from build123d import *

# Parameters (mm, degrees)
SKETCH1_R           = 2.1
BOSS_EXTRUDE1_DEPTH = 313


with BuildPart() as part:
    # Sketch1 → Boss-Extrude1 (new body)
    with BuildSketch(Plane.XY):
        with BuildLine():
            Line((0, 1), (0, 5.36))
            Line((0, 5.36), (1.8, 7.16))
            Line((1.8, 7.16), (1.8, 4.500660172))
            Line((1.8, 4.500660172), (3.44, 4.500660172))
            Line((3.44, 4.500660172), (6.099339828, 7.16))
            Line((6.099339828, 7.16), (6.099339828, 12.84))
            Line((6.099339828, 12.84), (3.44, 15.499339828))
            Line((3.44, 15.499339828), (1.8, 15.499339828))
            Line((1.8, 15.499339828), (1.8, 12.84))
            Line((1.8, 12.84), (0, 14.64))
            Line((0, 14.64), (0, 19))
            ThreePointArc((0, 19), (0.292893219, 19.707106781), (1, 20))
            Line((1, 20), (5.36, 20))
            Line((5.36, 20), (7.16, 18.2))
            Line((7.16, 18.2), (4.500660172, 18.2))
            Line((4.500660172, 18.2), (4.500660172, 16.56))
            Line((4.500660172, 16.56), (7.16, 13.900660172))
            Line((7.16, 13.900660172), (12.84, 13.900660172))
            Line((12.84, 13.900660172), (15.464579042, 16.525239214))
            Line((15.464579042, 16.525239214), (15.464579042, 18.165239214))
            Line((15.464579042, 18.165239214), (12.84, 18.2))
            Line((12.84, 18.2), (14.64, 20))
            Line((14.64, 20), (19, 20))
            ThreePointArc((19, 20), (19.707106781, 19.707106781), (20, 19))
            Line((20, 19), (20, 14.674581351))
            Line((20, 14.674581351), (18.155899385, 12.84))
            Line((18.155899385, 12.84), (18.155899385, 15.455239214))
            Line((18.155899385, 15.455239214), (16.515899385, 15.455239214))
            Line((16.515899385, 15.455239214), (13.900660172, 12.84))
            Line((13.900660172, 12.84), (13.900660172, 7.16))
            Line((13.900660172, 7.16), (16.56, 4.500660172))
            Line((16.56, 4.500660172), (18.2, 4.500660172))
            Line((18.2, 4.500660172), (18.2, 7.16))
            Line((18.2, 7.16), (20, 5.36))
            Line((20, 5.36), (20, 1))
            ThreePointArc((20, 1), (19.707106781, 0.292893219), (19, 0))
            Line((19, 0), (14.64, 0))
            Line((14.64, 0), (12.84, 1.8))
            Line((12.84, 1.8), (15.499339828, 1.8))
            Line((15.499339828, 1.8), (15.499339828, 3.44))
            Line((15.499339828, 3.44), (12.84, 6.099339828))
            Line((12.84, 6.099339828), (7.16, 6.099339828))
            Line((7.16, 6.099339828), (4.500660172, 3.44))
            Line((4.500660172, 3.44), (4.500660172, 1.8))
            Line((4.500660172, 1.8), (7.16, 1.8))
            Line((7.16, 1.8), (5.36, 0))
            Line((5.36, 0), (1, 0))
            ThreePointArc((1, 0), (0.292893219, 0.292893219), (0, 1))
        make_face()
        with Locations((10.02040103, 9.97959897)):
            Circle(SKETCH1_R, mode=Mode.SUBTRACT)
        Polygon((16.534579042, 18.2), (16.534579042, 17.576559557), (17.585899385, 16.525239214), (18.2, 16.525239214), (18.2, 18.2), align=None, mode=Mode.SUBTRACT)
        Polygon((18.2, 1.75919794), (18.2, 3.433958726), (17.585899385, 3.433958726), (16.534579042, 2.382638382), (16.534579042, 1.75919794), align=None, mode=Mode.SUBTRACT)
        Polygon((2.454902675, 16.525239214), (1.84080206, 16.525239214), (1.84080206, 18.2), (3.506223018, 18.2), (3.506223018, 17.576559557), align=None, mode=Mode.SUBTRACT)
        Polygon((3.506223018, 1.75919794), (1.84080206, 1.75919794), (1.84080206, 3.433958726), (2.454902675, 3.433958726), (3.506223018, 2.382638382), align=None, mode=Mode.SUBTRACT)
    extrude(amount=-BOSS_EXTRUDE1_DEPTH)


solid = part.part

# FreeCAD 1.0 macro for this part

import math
import FreeCAD as App
import Part
import Sketcher
Q = App.Units.Quantity


def add_polygon(sketch, points):
    """Adds a closed chain of lines whose ends are joined by coincident constraints."""
    first, n = sketch.GeometryCount, len(points)
    for a, b in zip(points, points[1:] + points[:1]):
        sketch.addGeometry(Part.LineSegment(App.Vector(*a, 0), App.Vector(*b, 0)), False)
    for i in range(n):
        sketch.addConstraint(Sketcher.Constraint("Coincident", first + i, 2, first + (i + 1) % n, 1))

doc = App.newDocument("Part")
body = doc.addObject("PartDesign::Body", "Body")

# Sketch on XY plane
sketch1 = body.newObject("Sketcher::SketchObject", "Sketch")
sketch1.AttachmentSupport = (doc.getObject("XY_Plane"), [""])
sketch1.MapMode = "FlatFace"
sketch1.addGeometry(Part.LineSegment(App.Vector(0, 5.4, 0), App.Vector(0, 1, 0)), False)  # 0
sketch1.addGeometry(Part.ArcOfCircle(Part.Circle(App.Vector(1, 1, 0), App.Vector(0, 0, 1), 1), math.radians(-180), math.radians(-90)), False)  # 1
sketch1.addGeometry(Part.LineSegment(App.Vector(1, 0, 0), App.Vector(5.4, 0, 0)), False)  # 2
sketch1.addGeometry(Part.LineSegment(App.Vector(5.4, 0, 0), App.Vector(7.2, 1.8, 0)), False)  # 3
sketch1.addGeometry(Part.LineSegment(App.Vector(7.2, 1.8, 0), App.Vector(4.5, 1.8, 0)), False)  # 4
sketch1.addGeometry(Part.LineSegment(App.Vector(4.5, 1.8, 0), App.Vector(4.5, 3.4, 0)), False)  # 5
sketch1.addGeometry(Part.LineSegment(App.Vector(4.5, 3.4, 0), App.Vector(7.2, 6.1, 0)), False)  # 6
sketch1.addGeometry(Part.LineSegment(App.Vector(7.2, 6.1, 0), App.Vector(12.8, 6.1, 0)), False)  # 7
sketch1.addGeometry(Part.LineSegment(App.Vector(12.8, 6.1, 0), App.Vector(15.5, 3.4, 0)), False)  # 8
sketch1.addGeometry(Part.LineSegment(App.Vector(15.5, 3.4, 0), App.Vector(15.5, 1.8, 0)), False)  # 9
sketch1.addGeometry(Part.LineSegment(App.Vector(15.5, 1.8, 0), App.Vector(12.8, 1.8, 0)), False)  # 10
sketch1.addGeometry(Part.LineSegment(App.Vector(12.8, 1.8, 0), App.Vector(14.6, 0, 0)), False)  # 11
sketch1.addGeometry(Part.LineSegment(App.Vector(14.6, 0, 0), App.Vector(19, 0, 0)), False)  # 12
sketch1.addGeometry(Part.ArcOfCircle(Part.Circle(App.Vector(19, 1, 0), App.Vector(0, 0, 1), 1), math.radians(-90), math.radians(0)), False)  # 13
sketch1.addGeometry(Part.LineSegment(App.Vector(20, 1, 0), App.Vector(20, 5.4, 0)), False)  # 14
sketch1.addGeometry(Part.LineSegment(App.Vector(20, 5.4, 0), App.Vector(18.2, 7.2, 0)), False)  # 15
sketch1.addGeometry(Part.LineSegment(App.Vector(18.2, 7.2, 0), App.Vector(18.2, 4.5, 0)), False)  # 16
sketch1.addGeometry(Part.LineSegment(App.Vector(18.2, 4.5, 0), App.Vector(16.6, 4.5, 0)), False)  # 17
sketch1.addGeometry(Part.LineSegment(App.Vector(16.6, 4.5, 0), App.Vector(13.9, 7.2, 0)), False)  # 18
sketch1.addGeometry(Part.LineSegment(App.Vector(13.9, 7.2, 0), App.Vector(13.9, 12.8, 0)), False)  # 19
sketch1.addGeometry(Part.LineSegment(App.Vector(13.9, 12.8, 0), App.Vector(16.5, 15.5, 0)), False)  # 20
sketch1.addGeometry(Part.LineSegment(App.Vector(16.5, 15.5, 0), App.Vector(18.2, 15.5, 0)), False)  # 21
sketch1.addGeometry(Part.LineSegment(App.Vector(18.2, 15.5, 0), App.Vector(18.2, 12.8, 0)), False)  # 22
sketch1.addGeometry(Part.LineSegment(App.Vector(18.2, 12.8, 0), App.Vector(20, 14.7, 0)), False)  # 23
sketch1.addGeometry(Part.LineSegment(App.Vector(20, 14.7, 0), App.Vector(20, 19, 0)), False)  # 24
sketch1.addGeometry(Part.ArcOfCircle(Part.Circle(App.Vector(19, 19, 0), App.Vector(0, 0, 1), 1), math.radians(0), math.radians(90)), False)  # 25
sketch1.addGeometry(Part.LineSegment(App.Vector(19, 20, 0), App.Vector(14.6, 20, 0)), False)  # 26
sketch1.addGeometry(Part.LineSegment(App.Vector(14.6, 20, 0), App.Vector(12.8, 18.2, 0)), False)  # 27
sketch1.addGeometry(Part.LineSegment(App.Vector(12.8, 18.2, 0), App.Vector(15.5, 18.2, 0)), False)  # 28
sketch1.addGeometry(Part.LineSegment(App.Vector(15.5, 18.2, 0), App.Vector(15.5, 16.5, 0)), False)  # 29
sketch1.addGeometry(Part.LineSegment(App.Vector(15.5, 16.5, 0), App.Vector(12.8, 13.9, 0)), False)  # 30
sketch1.addGeometry(Part.LineSegment(App.Vector(12.8, 13.9, 0), App.Vector(7.2, 13.9, 0)), False)  # 31
sketch1.addGeometry(Part.LineSegment(App.Vector(7.2, 13.9, 0), App.Vector(4.5, 16.6, 0)), False)  # 32
sketch1.addGeometry(Part.LineSegment(App.Vector(4.5, 16.6, 0), App.Vector(4.5, 18.2, 0)), False)  # 33
sketch1.addGeometry(Part.LineSegment(App.Vector(4.5, 18.2, 0), App.Vector(7.2, 18.2, 0)), False)  # 34
sketch1.addGeometry(Part.LineSegment(App.Vector(7.2, 18.2, 0), App.Vector(5.4, 20, 0)), False)  # 35
sketch1.addGeometry(Part.LineSegment(App.Vector(5.4, 20, 0), App.Vector(1, 20, 0)), False)  # 36
sketch1.addGeometry(Part.ArcOfCircle(Part.Circle(App.Vector(1, 19, 0), App.Vector(0, 0, 1), 1), math.radians(90), math.radians(180)), False)  # 37
sketch1.addGeometry(Part.LineSegment(App.Vector(0, 19, 0), App.Vector(0, 14.6, 0)), False)  # 38
sketch1.addGeometry(Part.LineSegment(App.Vector(0, 14.6, 0), App.Vector(1.8, 12.8, 0)), False)  # 39
sketch1.addGeometry(Part.LineSegment(App.Vector(1.8, 12.8, 0), App.Vector(1.8, 15.5, 0)), False)  # 40
sketch1.addGeometry(Part.LineSegment(App.Vector(1.8, 15.5, 0), App.Vector(3.4, 15.5, 0)), False)  # 41
sketch1.addGeometry(Part.LineSegment(App.Vector(3.4, 15.5, 0), App.Vector(6.1, 12.8, 0)), False)  # 42
sketch1.addGeometry(Part.LineSegment(App.Vector(6.1, 12.8, 0), App.Vector(6.1, 7.2, 0)), False)  # 43
sketch1.addGeometry(Part.LineSegment(App.Vector(6.1, 7.2, 0), App.Vector(3.4, 4.5, 0)), False)  # 44
sketch1.addGeometry(Part.LineSegment(App.Vector(3.4, 4.5, 0), App.Vector(1.8, 4.5, 0)), False)  # 45
sketch1.addGeometry(Part.LineSegment(App.Vector(1.8, 4.5, 0), App.Vector(1.8, 7.2, 0)), False)  # 46
sketch1.addGeometry(Part.LineSegment(App.Vector(1.8, 7.2, 0), App.Vector(0, 5.4, 0)), False)  # 47
add_polygon(sketch1, [(18.2, 1.8), (16.5, 1.8), (16.5, 2.4), (17.6, 3.4), (18.2, 3.4)])  # lines 48-52
add_polygon(sketch1, [(3.5, 1.8), (1.8, 1.8), (1.8, 3.4), (2.5, 3.4), (3.5, 2.4)])  # lines 53-57
sketch1.addGeometry(Part.Circle(App.Vector(10, 10, 0), App.Vector(0, 0, 1), 2.1), False)  # 58
add_polygon(sketch1, [(16.5, 18.2), (18.2, 18.2), (18.2, 16.5), (17.6, 16.5), (16.5, 17.6)])  # lines 59-63
add_polygon(sketch1, [(2.5, 16.5), (1.8, 16.5), (1.8, 18.2), (3.5, 18.2), (3.5, 17.6)])  # lines 64-68
sketch1.addConstraint(Sketcher.Constraint("Tangent", 0, 2, 1, 1))
sketch1.addConstraint(Sketcher.Constraint("Tangent", 1, 2, 2, 1))
sketch1.addConstraint(Sketcher.Constraint("Coincident", 2, 2, 3, 1))
sketch1.addConstraint(Sketcher.Constraint("Coincident", 3, 2, 4, 1))
sketch1.addConstraint(Sketcher.Constraint("Coincident", 4, 2, 5, 1))
sketch1.addConstraint(Sketcher.Constraint("Coincident", 5, 2, 6, 1))
sketch1.addConstraint(Sketcher.Constraint("Coincident", 6, 2, 7, 1))
sketch1.addConstraint(Sketcher.Constraint("Coincident", 7, 2, 8, 1))
sketch1.addConstraint(Sketcher.Constraint("Coincident", 8, 2, 9, 1))
sketch1.addConstraint(Sketcher.Constraint("Coincident", 9, 2, 10, 1))
sketch1.addConstraint(Sketcher.Constraint("Coincident", 10, 2, 11, 1))
sketch1.addConstraint(Sketcher.Constraint("Coincident", 11, 2, 12, 1))
sketch1.addConstraint(Sketcher.Constraint("Tangent", 12, 2, 13, 1))
sketch1.addConstraint(Sketcher.Constraint("Tangent", 13, 2, 14, 1))
sketch1.addConstraint(Sketcher.Constraint("Coincident", 14, 2, 15, 1))
sketch1.addConstraint(Sketcher.Constraint("Coincident", 15, 2, 16, 1))
sketch1.addConstraint(Sketcher.Constraint("Coincident", 16, 2, 17, 1))
sketch1.addConstraint(Sketcher.Constraint("Coincident", 17, 2, 18, 1))
sketch1.addConstraint(Sketcher.Constraint("Coincident", 18, 2, 19, 1))
sketch1.addConstraint(Sketcher.Constraint("Coincident", 19, 2, 20, 1))
sketch1.addConstraint(Sketcher.Constraint("Coincident", 20, 2, 21, 1))
sketch1.addConstraint(Sketcher.Constraint("Coincident", 21, 2, 22, 1))
sketch1.addConstraint(Sketcher.Constraint("Coincident", 22, 2, 23, 1))
sketch1.addConstraint(Sketcher.Constraint("Coincident", 23, 2, 24, 1))
sketch1.addConstraint(Sketcher.Constraint("Tangent", 24, 2, 25, 1))
sketch1.addConstraint(Sketcher.Constraint("Tangent", 25, 2, 26, 1))
sketch1.addConstraint(Sketcher.Constraint("Coincident", 26, 2, 27, 1))
sketch1.addConstraint(Sketcher.Constraint("Coincident", 27, 2, 28, 1))
sketch1.addConstraint(Sketcher.Constraint("Coincident", 28, 2, 29, 1))
sketch1.addConstraint(Sketcher.Constraint("Coincident", 29, 2, 30, 1))
sketch1.addConstraint(Sketcher.Constraint("Coincident", 30, 2, 31, 1))
sketch1.addConstraint(Sketcher.Constraint("Coincident", 31, 2, 32, 1))
sketch1.addConstraint(Sketcher.Constraint("Coincident", 32, 2, 33, 1))
sketch1.addConstraint(Sketcher.Constraint("Coincident", 33, 2, 34, 1))
sketch1.addConstraint(Sketcher.Constraint("Coincident", 34, 2, 35, 1))
sketch1.addConstraint(Sketcher.Constraint("Coincident", 35, 2, 36, 1))
sketch1.addConstraint(Sketcher.Constraint("Tangent", 36, 2, 37, 1))
sketch1.addConstraint(Sketcher.Constraint("Tangent", 37, 2, 38, 1))
sketch1.addConstraint(Sketcher.Constraint("Coincident", 38, 2, 39, 1))
sketch1.addConstraint(Sketcher.Constraint("Coincident", 39, 2, 40, 1))
sketch1.addConstraint(Sketcher.Constraint("Coincident", 40, 2, 41, 1))
sketch1.addConstraint(Sketcher.Constraint("Coincident", 41, 2, 42, 1))
sketch1.addConstraint(Sketcher.Constraint("Coincident", 42, 2, 43, 1))
sketch1.addConstraint(Sketcher.Constraint("Coincident", 43, 2, 44, 1))
sketch1.addConstraint(Sketcher.Constraint("Coincident", 44, 2, 45, 1))
sketch1.addConstraint(Sketcher.Constraint("Coincident", 45, 2, 46, 1))
sketch1.addConstraint(Sketcher.Constraint("Coincident", 46, 2, 47, 1))
sketch1.addConstraint(Sketcher.Constraint("Coincident", 47, 2, 0, 1))
sketch1.addConstraint(Sketcher.Constraint("Vertical", 0))
sketch1.addConstraint(Sketcher.Constraint("Horizontal", 2))
sketch1.addConstraint(Sketcher.Constraint("Horizontal", 4))
sketch1.addConstraint(Sketcher.Constraint("Vertical", 5))
sketch1.addConstraint(Sketcher.Constraint("Horizontal", 7))
sketch1.addConstraint(Sketcher.Constraint("Vertical", 9))
sketch1.addConstraint(Sketcher.Constraint("Horizontal", 10))
sketch1.addConstraint(Sketcher.Constraint("Horizontal", 12))
sketch1.addConstraint(Sketcher.Constraint("Vertical", 14))
sketch1.addConstraint(Sketcher.Constraint("Vertical", 16))
sketch1.addConstraint(Sketcher.Constraint("Horizontal", 17))
sketch1.addConstraint(Sketcher.Constraint("Vertical", 19))
sketch1.addConstraint(Sketcher.Constraint("Horizontal", 21))
sketch1.addConstraint(Sketcher.Constraint("Vertical", 22))
sketch1.addConstraint(Sketcher.Constraint("Vertical", 24))
sketch1.addConstraint(Sketcher.Constraint("Horizontal", 26))
sketch1.addConstraint(Sketcher.Constraint("Vertical", 29))
sketch1.addConstraint(Sketcher.Constraint("Horizontal", 31))
sketch1.addConstraint(Sketcher.Constraint("Vertical", 33))
sketch1.addConstraint(Sketcher.Constraint("Horizontal", 34))
sketch1.addConstraint(Sketcher.Constraint("Horizontal", 36))
sketch1.addConstraint(Sketcher.Constraint("Vertical", 38))
sketch1.addConstraint(Sketcher.Constraint("Vertical", 40))
sketch1.addConstraint(Sketcher.Constraint("Horizontal", 41))
sketch1.addConstraint(Sketcher.Constraint("Vertical", 43))
sketch1.addConstraint(Sketcher.Constraint("Horizontal", 45))
sketch1.addConstraint(Sketcher.Constraint("Vertical", 46))
sketch1.addConstraint(Sketcher.Constraint("Horizontal", 48))
sketch1.addConstraint(Sketcher.Constraint("Vertical", 49))
sketch1.addConstraint(Sketcher.Constraint("Horizontal", 51))
sketch1.addConstraint(Sketcher.Constraint("Vertical", 52))
sketch1.addConstraint(Sketcher.Constraint("Horizontal", 53))
sketch1.addConstraint(Sketcher.Constraint("Vertical", 54))
sketch1.addConstraint(Sketcher.Constraint("Horizontal", 55))
sketch1.addConstraint(Sketcher.Constraint("Vertical", 57))
sketch1.addConstraint(Sketcher.Constraint("Horizontal", 59))
sketch1.addConstraint(Sketcher.Constraint("Vertical", 60))
sketch1.addConstraint(Sketcher.Constraint("Horizontal", 61))
sketch1.addConstraint(Sketcher.Constraint("Vertical", 63))
sketch1.addConstraint(Sketcher.Constraint("Horizontal", 64))
sketch1.addConstraint(Sketcher.Constraint("Vertical", 65))
sketch1.addConstraint(Sketcher.Constraint("Horizontal", 66))
sketch1.addConstraint(Sketcher.Constraint("Vertical", 67))
sketch1.addConstraint(Sketcher.Constraint("Equal", 1, 13))
sketch1.addConstraint(Sketcher.Constraint("Equal", 13, 25))
sketch1.addConstraint(Sketcher.Constraint("Equal", 25, 37))
sketch1.addConstraint(Sketcher.Constraint("PointOnObject", 0, 2, -2))
sketch1.addConstraint(Sketcher.Constraint("PointOnObject", 1, 2, -1))
sketch1.addConstraint(Sketcher.Constraint("PointOnObject", 11, 2, -1))
sketch1.addConstraint(Sketcher.Constraint("PointOnObject", 37, 2, -2))
sketch1.addConstraint(Sketcher.Constraint("Parallel", 3, 6))
sketch1.addConstraint(Sketcher.Constraint("Perpendicular", 6, 8))
sketch1.addConstraint(Sketcher.Constraint("Parallel", 8, 11))
sketch1.addConstraint(Sketcher.Constraint("Parallel", 11, 15))
sketch1.addConstraint(Sketcher.Constraint("Parallel", 15, 18))
sketch1.addConstraint(Sketcher.Constraint("Perpendicular", 18, 20))
sketch1.addConstraint(Sketcher.Constraint("Parallel", 20, 27))
sketch1.addConstraint(Sketcher.Constraint("Parallel", 27, 30))
sketch1.addConstraint(Sketcher.Constraint("Perpendicular", 30, 32))
sketch1.addConstraint(Sketcher.Constraint("Parallel", 32, 35))
sketch1.addConstraint(Sketcher.Constraint("Parallel", 35, 39))
sketch1.addConstraint(Sketcher.Constraint("Parallel", 39, 42))
sketch1.addConstraint(Sketcher.Constraint("Perpendicular", 42, 44))
sketch1.addConstraint(Sketcher.Constraint("Parallel", 44, 47))
sketch1.addConstraint(Sketcher.Constraint("Parallel", 47, 50))
sketch1.addConstraint(Sketcher.Constraint("Perpendicular", 50, 56))
sketch1.addConstraint(Sketcher.Constraint("Parallel", 56, 62))
sketch1.addConstraint(Sketcher.Constraint("Perpendicular", 62, 68))
sketch1.addConstraint(Sketcher.Constraint("Horizontal", 25, 3, 37, 3))
sketch1.addConstraint(Sketcher.Constraint("Horizontal", 5, 2, 8, 2))
sketch1.addConstraint(Sketcher.Constraint("Horizontal", 4, 2, 9, 2))
sketch1.addConstraint(Sketcher.Constraint("Horizontal", 15, 2, 18, 2))
sketch1.addConstraint(Sketcher.Constraint("Horizontal", 19, 2, 22, 2))
sketch1.addConstraint(Sketcher.Constraint("Horizontal", 27, 2, 33, 2))
sketch1.addConstraint(Sketcher.Constraint("Horizontal", 22, 2, 39, 2))
sketch1.addConstraint(Sketcher.Constraint("Horizontal", 39, 2, 42, 2))
sketch1.addConstraint(Sketcher.Constraint("Horizontal", 18, 2, 43, 2))
sketch1.addConstraint(Sketcher.Constraint("Horizontal", 17, 2, 44, 2))
sketch1.addConstraint(Sketcher.Constraint("Horizontal", 43, 2, 46, 2))
sketch1.addConstraint(Sketcher.Constraint("Horizontal", 14, 2, 47, 2))
sketch1.addConstraint(Sketcher.Constraint("Horizontal", 52, 2, 53, 2))
sketch1.addConstraint(Sketcher.Constraint("Horizontal", 51, 2, 54, 2))
sketch1.addConstraint(Sketcher.Constraint("Horizontal", 49, 2, 56, 2))
sketch1.addConstraint(Sketcher.Constraint("Horizontal", 34, 2, 59, 2))
sketch1.addConstraint(Sketcher.Constraint("Horizontal", 29, 2, 60, 2))
sketch1.addConstraint(Sketcher.Constraint("Horizontal", 61, 2, 64, 2))
sketch1.addConstraint(Sketcher.Constraint("Horizontal", 63, 2, 65, 2))
sketch1.addConstraint(Sketcher.Constraint("Horizontal", 62, 2, 67, 2))
sketch1.addConstraint(Sketcher.Constraint("Vertical", 13, 3, 25, 3))
sketch1.addConstraint(Sketcher.Constraint("Vertical", 3, 2, 6, 2))
sketch1.addConstraint(Sketcher.Constraint("Vertical", 7, 2, 10, 2))
sketch1.addConstraint(Sketcher.Constraint("Vertical", 11, 2, 26, 2))
sketch1.addConstraint(Sketcher.Constraint("Vertical", 10, 2, 27, 2))
sketch1.addConstraint(Sketcher.Constraint("Vertical", 27, 2, 30, 2))
sketch1.addConstraint(Sketcher.Constraint("Vertical", 6, 2, 31, 2))
sketch1.addConstraint(Sketcher.Constraint("Vertical", 5, 2, 32, 2))
sketch1.addConstraint(Sketcher.Constraint("Vertical", 31, 2, 34, 2))
sketch1.addConstraint(Sketcher.Constraint("Vertical", 2, 2, 35, 2))
sketch1.addConstraint(Sketcher.Constraint("Vertical", 41, 2, 44, 2))
sketch1.addConstraint(Sketcher.Constraint("Vertical", 40, 2, 45, 2))
sketch1.addConstraint(Sketcher.Constraint("Vertical", 16, 2, 51, 2))
sketch1.addConstraint(Sketcher.Constraint("Vertical", 52, 2, 59, 2))
sketch1.addConstraint(Sketcher.Constraint("Vertical", 50, 2, 61, 2))
sketch1.addConstraint(Sketcher.Constraint("Vertical", 49, 2, 62, 2))
sketch1.addConstraint(Sketcher.Constraint("Vertical", 54, 2, 64, 2))
sketch1.addConstraint(Sketcher.Constraint("Vertical", 57, 2, 66, 2))
sketch1.addConstraint(Sketcher.Constraint("Equal", 2, 12))
sketch1.addConstraint(Sketcher.Constraint("Equal", 17, 21))
sketch1.addConstraint(Sketcher.Constraint("Equal", 21, 41))
sketch1.addConstraint(Sketcher.Constraint("Equal", 48, 53))
sketch1.addConstraint(Sketcher.Constraint("Equal", 36, 0))
sketch1.addConstraint(Sketcher.Constraint("Equal", 45, 5))
sketch1.addConstraint(Sketcher.Constraint("Equal", 34, 16))
sketch1.addConstraint(Sketcher.Constraint("Equal", 31, 19))
sketch1.addConstraint(Sketcher.Constraint("Equal", 9, 29))
sketch1.addConstraint(Sketcher.Constraint("Equal", 29, 33))
sketch1.addConstraint(Sketcher.Constraint("Equal", 14, 38))
sketch1.addConstraint(Sketcher.Constraint("Equal", 54, 60))
sketch1.addConstraint(Sketcher.Constraint("Equal", 11, 15))
sketch1.addConstraint(Sketcher.Constraint("Radius", 1, Q("1 mm")))
sketch1.addConstraint(Sketcher.Constraint("Diameter", 58, Q("4.2 mm")))
sketch1.addConstraint(Sketcher.Constraint("DistanceX", -1, 1, 13, 3, Q("19 mm")))
sketch1.addConstraint(Sketcher.Constraint("DistanceX", 2, 1, 2, 2, Q("4.36 mm")))
sketch1.addConstraint(Sketcher.Constraint("DistanceX", 7, 1, 7, 2, Q("5.68 mm")))
sketch1.addConstraint(Sketcher.Constraint("DistanceX", 17, 2, 17, 1, Q("1.64 mm")))
sketch1.addConstraint(Sketcher.Constraint("DistanceX", 51, 1, 51, 2, Q("0.614101 mm")))
sketch1.addConstraint(Sketcher.Constraint("DistanceX", 4, 2, 4, 1, Q("2.65934 mm")))
sketch1.addConstraint(Sketcher.Constraint("DistanceX", 48, 2, 48, 1, Q("1.665421 mm")))
sketch1.addConstraint(Sketcher.Constraint("DistanceY", 22, 2, 22, 1, Q("2.615239 mm")))
sketch1.addConstraint(Sketcher.Constraint("DistanceY", 24, 1, 24, 2, Q("4.325419 mm")))
sketch1.addConstraint(Sketcher.Constraint("DistanceY", 49, 1, 49, 2, Q("0.62344 mm")))
sketch1.addConstraint(Sketcher.Constraint("DistanceX", -1, 1, 58, 3, Q("10.020401 mm")))
sketch1.addConstraint(Sketcher.Constraint("DistanceY", -1, 1, 58, 3, Q("9.979599 mm")))
sketch1.addConstraint(Sketcher.Constraint("DistanceY", -1, 1, 49, 2, Q("2.382638 mm")))
sketch1.addConstraint(Sketcher.Constraint("DistanceX", -1, 1, 53, 2, Q("1.840802 mm")))
pad1 = body.newObject("PartDesign::Pad", "Pad")
pad1.Profile = sketch1
pad1.Length = 313
pad1.Reversed = True

doc.recompute()
